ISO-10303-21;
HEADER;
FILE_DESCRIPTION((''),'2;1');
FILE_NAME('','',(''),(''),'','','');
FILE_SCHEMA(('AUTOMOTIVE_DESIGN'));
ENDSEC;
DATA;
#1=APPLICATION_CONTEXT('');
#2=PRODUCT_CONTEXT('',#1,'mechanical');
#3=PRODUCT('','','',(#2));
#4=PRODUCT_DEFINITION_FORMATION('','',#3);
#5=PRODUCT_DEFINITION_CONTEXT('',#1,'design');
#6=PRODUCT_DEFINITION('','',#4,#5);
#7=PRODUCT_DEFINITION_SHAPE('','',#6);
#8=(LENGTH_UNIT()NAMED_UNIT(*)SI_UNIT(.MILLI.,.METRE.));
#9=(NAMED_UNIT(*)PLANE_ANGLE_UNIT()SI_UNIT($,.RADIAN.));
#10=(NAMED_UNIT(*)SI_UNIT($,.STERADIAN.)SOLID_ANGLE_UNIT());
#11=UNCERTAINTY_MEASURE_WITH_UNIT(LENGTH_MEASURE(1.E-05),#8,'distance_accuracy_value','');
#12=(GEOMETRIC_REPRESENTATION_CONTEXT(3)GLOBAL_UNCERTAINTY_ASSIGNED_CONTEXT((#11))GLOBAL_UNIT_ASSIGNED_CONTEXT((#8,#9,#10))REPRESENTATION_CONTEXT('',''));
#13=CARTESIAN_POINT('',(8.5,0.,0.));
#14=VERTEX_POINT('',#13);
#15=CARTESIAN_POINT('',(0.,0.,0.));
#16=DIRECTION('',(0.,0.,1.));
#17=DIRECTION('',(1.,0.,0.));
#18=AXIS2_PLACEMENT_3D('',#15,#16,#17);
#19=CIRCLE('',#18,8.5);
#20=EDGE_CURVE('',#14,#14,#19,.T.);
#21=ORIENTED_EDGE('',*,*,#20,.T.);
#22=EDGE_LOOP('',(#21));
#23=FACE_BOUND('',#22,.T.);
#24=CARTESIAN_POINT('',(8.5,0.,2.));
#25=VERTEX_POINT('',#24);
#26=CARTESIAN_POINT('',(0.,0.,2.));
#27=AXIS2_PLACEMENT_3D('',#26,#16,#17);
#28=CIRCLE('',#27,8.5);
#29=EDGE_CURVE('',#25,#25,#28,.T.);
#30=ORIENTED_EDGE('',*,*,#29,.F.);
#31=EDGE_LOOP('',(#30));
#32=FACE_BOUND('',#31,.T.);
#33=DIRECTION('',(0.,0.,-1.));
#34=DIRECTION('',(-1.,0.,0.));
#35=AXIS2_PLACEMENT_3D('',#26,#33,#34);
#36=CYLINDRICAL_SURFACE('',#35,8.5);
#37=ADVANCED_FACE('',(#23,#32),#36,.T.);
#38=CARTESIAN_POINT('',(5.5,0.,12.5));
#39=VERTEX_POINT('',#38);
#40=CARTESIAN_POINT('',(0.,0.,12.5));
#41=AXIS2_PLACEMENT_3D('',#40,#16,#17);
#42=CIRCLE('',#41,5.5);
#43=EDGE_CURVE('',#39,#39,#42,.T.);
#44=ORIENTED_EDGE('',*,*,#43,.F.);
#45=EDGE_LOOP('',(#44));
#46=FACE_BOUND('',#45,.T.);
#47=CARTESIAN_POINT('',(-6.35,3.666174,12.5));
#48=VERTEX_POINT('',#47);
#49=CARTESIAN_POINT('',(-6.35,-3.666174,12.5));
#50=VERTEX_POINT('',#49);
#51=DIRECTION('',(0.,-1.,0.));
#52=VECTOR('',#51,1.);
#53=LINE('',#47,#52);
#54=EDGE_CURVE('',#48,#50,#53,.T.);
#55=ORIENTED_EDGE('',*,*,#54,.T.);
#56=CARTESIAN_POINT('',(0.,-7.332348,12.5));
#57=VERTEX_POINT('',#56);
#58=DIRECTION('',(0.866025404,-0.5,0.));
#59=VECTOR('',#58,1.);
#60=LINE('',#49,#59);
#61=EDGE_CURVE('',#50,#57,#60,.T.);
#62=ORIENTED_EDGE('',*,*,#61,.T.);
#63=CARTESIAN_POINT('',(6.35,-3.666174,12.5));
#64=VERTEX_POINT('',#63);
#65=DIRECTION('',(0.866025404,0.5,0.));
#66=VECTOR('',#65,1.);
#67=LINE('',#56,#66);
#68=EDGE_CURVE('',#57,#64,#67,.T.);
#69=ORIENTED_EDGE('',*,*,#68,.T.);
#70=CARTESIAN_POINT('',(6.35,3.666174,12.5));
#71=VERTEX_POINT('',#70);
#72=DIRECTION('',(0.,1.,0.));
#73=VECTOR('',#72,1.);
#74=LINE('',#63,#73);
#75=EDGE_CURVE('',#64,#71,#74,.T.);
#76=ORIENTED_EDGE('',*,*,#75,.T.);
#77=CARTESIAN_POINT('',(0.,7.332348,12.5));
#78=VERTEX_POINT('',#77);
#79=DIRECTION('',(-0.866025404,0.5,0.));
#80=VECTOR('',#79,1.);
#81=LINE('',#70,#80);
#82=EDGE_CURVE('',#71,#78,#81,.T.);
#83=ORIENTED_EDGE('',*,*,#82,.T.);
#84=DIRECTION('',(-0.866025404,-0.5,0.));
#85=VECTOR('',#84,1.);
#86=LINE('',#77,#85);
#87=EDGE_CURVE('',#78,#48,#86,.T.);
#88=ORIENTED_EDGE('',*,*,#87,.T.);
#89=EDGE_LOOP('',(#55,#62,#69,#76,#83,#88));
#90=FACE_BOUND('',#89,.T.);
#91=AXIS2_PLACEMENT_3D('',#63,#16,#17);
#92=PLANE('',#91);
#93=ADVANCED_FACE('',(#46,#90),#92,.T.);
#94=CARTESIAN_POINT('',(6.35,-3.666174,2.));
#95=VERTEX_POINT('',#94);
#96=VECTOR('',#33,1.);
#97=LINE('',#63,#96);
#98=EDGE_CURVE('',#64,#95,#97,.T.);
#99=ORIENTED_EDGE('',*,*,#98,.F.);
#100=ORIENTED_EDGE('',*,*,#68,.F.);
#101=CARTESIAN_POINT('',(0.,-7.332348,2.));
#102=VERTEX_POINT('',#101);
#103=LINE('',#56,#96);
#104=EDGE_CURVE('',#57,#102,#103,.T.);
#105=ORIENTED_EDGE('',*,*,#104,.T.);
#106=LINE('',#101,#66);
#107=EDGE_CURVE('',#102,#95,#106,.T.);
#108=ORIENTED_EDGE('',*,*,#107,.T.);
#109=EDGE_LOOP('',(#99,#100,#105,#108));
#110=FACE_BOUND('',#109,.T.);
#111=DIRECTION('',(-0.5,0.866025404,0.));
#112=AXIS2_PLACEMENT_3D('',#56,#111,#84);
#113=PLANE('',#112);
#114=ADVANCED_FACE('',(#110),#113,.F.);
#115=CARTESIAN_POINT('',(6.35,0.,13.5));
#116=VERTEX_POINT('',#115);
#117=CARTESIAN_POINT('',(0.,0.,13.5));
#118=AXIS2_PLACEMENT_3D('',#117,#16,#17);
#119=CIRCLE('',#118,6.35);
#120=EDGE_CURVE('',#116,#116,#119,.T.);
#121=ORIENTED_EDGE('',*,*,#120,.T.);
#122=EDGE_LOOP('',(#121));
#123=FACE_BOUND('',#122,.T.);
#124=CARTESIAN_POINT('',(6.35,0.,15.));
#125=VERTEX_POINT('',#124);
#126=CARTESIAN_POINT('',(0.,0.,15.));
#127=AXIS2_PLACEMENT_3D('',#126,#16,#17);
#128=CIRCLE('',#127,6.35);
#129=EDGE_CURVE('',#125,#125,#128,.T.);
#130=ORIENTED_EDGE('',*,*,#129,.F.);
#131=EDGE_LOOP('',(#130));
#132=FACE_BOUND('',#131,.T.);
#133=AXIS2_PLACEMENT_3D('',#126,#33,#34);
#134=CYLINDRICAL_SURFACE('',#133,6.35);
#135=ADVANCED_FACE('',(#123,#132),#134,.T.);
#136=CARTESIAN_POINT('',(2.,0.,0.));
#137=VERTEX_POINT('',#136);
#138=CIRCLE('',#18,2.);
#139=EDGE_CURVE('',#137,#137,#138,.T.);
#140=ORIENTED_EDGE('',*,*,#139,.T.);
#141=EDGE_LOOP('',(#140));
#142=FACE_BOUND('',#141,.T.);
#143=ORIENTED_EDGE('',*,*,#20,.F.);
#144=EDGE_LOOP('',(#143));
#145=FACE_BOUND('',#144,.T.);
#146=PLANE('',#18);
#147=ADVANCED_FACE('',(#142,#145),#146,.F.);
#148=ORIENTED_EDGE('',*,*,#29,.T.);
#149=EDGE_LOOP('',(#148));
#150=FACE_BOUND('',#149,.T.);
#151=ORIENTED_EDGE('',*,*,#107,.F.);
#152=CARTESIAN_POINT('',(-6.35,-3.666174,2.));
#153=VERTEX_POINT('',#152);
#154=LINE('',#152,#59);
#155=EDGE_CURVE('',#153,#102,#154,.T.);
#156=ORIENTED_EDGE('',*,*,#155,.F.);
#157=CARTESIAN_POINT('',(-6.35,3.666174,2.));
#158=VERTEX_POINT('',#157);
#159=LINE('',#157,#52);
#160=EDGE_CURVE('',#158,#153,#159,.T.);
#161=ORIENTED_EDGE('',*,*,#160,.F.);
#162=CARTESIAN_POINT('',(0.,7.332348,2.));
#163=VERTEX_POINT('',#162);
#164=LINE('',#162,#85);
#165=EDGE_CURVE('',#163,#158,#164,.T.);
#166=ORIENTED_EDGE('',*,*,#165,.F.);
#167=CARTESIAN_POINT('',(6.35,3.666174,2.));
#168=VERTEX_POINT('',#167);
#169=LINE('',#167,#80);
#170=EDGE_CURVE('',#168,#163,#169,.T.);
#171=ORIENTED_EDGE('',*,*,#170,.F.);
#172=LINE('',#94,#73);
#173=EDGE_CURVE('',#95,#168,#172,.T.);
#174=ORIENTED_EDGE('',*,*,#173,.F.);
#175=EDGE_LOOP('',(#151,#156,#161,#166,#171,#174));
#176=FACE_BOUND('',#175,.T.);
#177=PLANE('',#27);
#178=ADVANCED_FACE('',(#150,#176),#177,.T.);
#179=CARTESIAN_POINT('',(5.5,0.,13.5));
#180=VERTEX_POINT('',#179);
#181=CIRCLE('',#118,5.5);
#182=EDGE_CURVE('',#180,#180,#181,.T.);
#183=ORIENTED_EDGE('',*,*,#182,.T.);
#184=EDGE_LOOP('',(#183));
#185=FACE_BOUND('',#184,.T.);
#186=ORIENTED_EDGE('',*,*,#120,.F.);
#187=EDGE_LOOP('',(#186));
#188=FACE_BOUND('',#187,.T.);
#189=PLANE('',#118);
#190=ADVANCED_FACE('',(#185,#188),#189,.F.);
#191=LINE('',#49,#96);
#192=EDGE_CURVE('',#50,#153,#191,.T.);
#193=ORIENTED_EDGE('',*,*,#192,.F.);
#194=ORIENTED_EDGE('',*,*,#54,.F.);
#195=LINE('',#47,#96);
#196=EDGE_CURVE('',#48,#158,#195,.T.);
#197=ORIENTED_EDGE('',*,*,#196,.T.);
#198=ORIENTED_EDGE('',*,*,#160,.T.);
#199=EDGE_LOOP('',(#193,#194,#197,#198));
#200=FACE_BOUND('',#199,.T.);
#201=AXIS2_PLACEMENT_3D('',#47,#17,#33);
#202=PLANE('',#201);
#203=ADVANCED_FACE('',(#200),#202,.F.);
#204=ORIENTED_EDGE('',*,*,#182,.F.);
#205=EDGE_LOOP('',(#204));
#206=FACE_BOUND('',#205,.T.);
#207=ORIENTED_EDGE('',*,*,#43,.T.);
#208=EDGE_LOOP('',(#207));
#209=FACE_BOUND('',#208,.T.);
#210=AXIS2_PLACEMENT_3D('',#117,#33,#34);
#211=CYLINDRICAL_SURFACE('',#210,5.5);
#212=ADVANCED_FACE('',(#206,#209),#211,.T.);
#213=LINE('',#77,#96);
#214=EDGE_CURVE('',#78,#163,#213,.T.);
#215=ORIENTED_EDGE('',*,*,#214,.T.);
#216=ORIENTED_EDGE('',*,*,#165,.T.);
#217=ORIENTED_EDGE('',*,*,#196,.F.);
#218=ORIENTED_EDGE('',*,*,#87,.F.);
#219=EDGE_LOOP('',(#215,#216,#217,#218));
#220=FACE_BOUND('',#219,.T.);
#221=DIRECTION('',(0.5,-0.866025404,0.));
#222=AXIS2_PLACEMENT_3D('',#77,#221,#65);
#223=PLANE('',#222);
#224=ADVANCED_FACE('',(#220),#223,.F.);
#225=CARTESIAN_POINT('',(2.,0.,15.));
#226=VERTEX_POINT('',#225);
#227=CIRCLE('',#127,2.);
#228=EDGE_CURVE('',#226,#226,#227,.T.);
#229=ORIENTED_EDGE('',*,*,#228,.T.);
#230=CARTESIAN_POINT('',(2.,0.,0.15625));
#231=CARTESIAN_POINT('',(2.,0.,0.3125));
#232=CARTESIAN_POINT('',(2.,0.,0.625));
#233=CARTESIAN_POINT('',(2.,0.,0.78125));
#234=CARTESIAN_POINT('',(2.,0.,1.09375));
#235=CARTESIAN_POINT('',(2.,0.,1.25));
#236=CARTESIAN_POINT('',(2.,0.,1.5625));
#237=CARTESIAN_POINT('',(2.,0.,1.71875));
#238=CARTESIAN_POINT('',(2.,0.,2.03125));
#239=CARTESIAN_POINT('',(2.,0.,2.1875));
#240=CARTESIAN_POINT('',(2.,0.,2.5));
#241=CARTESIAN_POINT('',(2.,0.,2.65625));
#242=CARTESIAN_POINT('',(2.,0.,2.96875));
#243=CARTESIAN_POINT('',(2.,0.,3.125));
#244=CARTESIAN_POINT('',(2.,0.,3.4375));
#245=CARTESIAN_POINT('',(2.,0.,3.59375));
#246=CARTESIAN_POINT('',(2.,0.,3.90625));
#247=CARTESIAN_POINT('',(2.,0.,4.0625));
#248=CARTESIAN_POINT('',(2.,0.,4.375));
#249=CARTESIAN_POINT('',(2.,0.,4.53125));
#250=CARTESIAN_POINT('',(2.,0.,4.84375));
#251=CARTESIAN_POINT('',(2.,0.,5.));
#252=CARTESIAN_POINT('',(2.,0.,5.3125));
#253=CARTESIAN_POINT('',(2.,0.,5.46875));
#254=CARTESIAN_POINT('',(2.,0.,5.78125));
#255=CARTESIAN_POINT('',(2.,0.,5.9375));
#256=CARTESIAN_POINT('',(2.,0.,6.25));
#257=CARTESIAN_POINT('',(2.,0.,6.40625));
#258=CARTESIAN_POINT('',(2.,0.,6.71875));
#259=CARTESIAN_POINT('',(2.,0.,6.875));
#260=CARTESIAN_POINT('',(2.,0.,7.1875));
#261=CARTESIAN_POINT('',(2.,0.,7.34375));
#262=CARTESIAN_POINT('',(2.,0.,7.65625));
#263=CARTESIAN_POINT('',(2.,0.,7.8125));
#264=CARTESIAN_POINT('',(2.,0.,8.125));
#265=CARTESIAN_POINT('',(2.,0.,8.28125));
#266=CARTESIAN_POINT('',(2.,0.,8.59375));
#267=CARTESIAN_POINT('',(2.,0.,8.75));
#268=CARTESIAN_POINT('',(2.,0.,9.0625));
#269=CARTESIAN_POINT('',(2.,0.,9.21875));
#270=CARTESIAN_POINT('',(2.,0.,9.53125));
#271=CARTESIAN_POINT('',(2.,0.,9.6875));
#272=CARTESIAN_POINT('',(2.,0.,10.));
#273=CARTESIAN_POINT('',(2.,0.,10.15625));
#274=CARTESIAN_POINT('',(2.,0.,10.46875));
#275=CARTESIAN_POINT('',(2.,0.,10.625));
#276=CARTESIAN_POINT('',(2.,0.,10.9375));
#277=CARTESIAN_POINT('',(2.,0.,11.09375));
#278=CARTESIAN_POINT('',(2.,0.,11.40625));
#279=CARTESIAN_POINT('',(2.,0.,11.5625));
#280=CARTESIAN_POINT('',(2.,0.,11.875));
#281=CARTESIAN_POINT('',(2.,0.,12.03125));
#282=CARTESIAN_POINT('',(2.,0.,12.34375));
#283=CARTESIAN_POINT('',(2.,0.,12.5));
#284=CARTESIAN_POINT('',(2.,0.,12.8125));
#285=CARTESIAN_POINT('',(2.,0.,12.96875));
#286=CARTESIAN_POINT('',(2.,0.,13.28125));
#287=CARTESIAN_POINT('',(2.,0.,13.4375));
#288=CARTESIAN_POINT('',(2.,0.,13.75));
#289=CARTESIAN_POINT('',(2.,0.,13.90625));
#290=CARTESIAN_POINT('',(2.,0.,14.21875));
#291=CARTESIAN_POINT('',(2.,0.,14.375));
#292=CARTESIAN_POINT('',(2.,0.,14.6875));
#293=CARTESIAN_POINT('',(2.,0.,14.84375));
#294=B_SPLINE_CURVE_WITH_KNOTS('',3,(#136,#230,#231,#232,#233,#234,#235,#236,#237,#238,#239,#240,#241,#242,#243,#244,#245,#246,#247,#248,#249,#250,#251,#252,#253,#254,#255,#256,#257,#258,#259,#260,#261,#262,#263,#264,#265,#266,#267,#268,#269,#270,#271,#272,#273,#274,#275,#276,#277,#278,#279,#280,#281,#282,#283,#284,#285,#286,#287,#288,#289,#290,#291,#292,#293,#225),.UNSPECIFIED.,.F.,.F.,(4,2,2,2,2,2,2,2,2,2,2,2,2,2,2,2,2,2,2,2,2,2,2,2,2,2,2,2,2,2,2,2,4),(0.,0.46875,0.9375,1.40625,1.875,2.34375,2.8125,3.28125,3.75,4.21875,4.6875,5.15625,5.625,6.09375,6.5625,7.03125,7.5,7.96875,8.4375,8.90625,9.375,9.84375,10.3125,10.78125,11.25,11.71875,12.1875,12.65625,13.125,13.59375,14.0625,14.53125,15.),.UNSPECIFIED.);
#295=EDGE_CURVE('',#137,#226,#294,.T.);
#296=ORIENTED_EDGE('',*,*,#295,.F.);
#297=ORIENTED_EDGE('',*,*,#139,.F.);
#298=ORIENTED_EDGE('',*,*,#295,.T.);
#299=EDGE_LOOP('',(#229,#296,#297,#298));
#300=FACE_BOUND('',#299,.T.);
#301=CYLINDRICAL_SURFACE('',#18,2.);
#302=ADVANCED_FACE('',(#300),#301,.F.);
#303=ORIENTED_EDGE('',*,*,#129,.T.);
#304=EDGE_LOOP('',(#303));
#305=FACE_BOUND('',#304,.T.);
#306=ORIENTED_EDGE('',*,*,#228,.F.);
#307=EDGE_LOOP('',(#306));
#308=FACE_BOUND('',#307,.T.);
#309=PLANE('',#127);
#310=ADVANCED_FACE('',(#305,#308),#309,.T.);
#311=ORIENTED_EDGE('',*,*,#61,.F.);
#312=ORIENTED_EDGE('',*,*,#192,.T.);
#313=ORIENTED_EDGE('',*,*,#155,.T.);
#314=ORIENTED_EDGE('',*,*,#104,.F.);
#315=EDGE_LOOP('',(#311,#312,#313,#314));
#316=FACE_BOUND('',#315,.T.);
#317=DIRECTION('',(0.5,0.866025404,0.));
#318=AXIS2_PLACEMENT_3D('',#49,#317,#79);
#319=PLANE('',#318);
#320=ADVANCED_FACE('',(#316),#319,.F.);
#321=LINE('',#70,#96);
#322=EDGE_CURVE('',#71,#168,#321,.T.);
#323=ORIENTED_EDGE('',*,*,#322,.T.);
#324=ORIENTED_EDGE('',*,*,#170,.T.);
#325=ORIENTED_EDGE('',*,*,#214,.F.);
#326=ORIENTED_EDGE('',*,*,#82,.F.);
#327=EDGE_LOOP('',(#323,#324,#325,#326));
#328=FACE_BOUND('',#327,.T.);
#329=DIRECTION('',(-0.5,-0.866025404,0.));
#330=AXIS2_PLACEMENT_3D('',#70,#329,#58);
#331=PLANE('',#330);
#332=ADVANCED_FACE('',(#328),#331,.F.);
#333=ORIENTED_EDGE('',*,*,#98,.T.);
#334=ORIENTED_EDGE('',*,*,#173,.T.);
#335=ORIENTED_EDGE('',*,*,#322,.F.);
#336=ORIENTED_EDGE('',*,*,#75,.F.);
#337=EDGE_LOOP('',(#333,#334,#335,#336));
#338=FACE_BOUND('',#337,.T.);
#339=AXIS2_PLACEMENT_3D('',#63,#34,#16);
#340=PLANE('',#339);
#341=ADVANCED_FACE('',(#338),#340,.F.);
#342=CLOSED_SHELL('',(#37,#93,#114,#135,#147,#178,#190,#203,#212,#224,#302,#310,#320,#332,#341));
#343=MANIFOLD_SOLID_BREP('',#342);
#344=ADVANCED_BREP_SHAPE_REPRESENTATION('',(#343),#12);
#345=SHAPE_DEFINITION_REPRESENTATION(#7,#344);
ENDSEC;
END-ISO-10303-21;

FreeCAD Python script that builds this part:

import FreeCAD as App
import Part
import Sketcher
Q = App.Units.Quantity


def add_polygon(sketch, points):
    """Adds a closed chain of lines whose ends are joined by coincident constraints."""
    first, n = sketch.GeometryCount, len(points)
    for a, b in zip(points, points[1:] + points[:1]):
        sketch.addGeometry(Part.LineSegment(App.Vector(*a, 0), App.Vector(*b, 0)), False)
    for i in range(n):
        sketch.addConstraint(Sketcher.Constraint("Coincident", first + i, 2, first + (i + 1) % n, 1))

doc = App.newDocument("Part")
body = doc.addObject("PartDesign::Body", "Body")

# Sketch on XY plane
sketch1 = body.newObject("Sketcher::SketchObject", "Sketch")
sketch1.AttachmentSupport = (doc.getObject("XY_Plane"), [""])
sketch1.MapMode = "FlatFace"
sketch1.addGeometry(Part.Circle(App.Vector(0, 0, 0), App.Vector(0, 0, 1), 8), False)
sketch1.addConstraint([
    Sketcher.Constraint("Coincident", 0, 3, -1, 1),
    Sketcher.Constraint("Diameter", 0, 17.0),
])
pad1 = body.newObject("PartDesign::Pad", "Pad")
pad1.Profile = sketch1
pad1.Length = 2

# Sketch on XY plane
sketch2 = body.newObject("Sketcher::SketchObject", "Sketch001")
sketch2.AttachmentSupport = (doc.getObject("XY_Plane"), [""])
sketch2.MapMode = "FlatFace"
sketch2.AttachmentOffset = App.Placement(App.Vector(0, 0, 2), App.Rotation())
add_polygon(sketch2, [(6, -4), (6, 4), (0, 7), (-6, 4), (-6, -4), (0, -7)])  # lines 0-5
sketch2.addConstraint([
    Sketcher.Constraint("Vertical", 0),
    Sketcher.Constraint("Vertical", 3),
    Sketcher.Constraint("Symmetric", 0, 2, 3, 2, -1, 1),
    Sketcher.Constraint("Symmetric", 1, 2, 4, 2, -1, 1),
    Sketcher.Constraint("PointOnObject", 1, 2, -2),
    Sketcher.Constraint("Parallel", 2, 5),
    Sketcher.Constraint("Horizontal", 0, 2, 2, 2),
    Sketcher.Constraint("Angle", 1, Q("150 deg")),
    Sketcher.Constraint("DistanceX", 2, 2, 0, 2, 12.7),
    Sketcher.Constraint("DistanceY", 0, 1, 0, 2, 7.332348),
])
pad2 = body.newObject("PartDesign::Pad", "Pad001")
pad2.Profile = sketch2
pad2.Length = 10.5

# Sketch on XY plane
sketch3 = body.newObject("Sketcher::SketchObject", "Sketch002")
sketch3.AttachmentSupport = (doc.getObject("XY_Plane"), [""])
sketch3.MapMode = "FlatFace"
sketch3.AttachmentOffset = App.Placement(App.Vector(0, 0, 12.5), App.Rotation())
sketch3.addGeometry(Part.Circle(App.Vector(0, 0, 0), App.Vector(0, 0, 1), 6), False)
sketch3.addConstraint([
    Sketcher.Constraint("Coincident", 0, 3, -1, 1),
    Sketcher.Constraint("Diameter", 0, 11.0),
])
pad3 = body.newObject("PartDesign::Pad", "Pad002")
pad3.Profile = sketch3
pad3.Length = 1

# Sketch on XY plane
sketch4 = body.newObject("Sketcher::SketchObject", "Sketch003")
sketch4.AttachmentSupport = (doc.getObject("XY_Plane"), [""])
sketch4.MapMode = "FlatFace"
sketch4.AttachmentOffset = App.Placement(App.Vector(0, 0, 13.5), App.Rotation())
sketch4.addGeometry(Part.Circle(App.Vector(0, 0, 0), App.Vector(0, 0, 1), 6), False)
sketch4.addConstraint([
    Sketcher.Constraint("Coincident", 0, 3, -1, 1),
    Sketcher.Constraint("Diameter", 0, 12.7),
])
pad4 = body.newObject("PartDesign::Pad", "Pad003")
pad4.Profile = sketch4
pad4.Length = 1.5

# Sketch on XY plane
sketch5 = body.newObject("Sketcher::SketchObject", "Sketch004")
sketch5.AttachmentSupport = (doc.getObject("XY_Plane"), [""])
sketch5.MapMode = "FlatFace"
sketch5.AttachmentOffset = App.Placement(App.Vector(0, 0, 15), App.Rotation())
sketch5.addGeometry(Part.Circle(App.Vector(0, 0, 0), App.Vector(0, 0, 1), 2), False)
sketch5.addConstraint([
    Sketcher.Constraint("Coincident", 0, 3, -1, 1),
    Sketcher.Constraint("Diameter", 0, 4.0),
])
pocket1 = body.newObject("PartDesign::Pocket", "Pocket")
pocket1.Profile = sketch5
pocket1.Type = "ThroughAll"

doc.recompute()
